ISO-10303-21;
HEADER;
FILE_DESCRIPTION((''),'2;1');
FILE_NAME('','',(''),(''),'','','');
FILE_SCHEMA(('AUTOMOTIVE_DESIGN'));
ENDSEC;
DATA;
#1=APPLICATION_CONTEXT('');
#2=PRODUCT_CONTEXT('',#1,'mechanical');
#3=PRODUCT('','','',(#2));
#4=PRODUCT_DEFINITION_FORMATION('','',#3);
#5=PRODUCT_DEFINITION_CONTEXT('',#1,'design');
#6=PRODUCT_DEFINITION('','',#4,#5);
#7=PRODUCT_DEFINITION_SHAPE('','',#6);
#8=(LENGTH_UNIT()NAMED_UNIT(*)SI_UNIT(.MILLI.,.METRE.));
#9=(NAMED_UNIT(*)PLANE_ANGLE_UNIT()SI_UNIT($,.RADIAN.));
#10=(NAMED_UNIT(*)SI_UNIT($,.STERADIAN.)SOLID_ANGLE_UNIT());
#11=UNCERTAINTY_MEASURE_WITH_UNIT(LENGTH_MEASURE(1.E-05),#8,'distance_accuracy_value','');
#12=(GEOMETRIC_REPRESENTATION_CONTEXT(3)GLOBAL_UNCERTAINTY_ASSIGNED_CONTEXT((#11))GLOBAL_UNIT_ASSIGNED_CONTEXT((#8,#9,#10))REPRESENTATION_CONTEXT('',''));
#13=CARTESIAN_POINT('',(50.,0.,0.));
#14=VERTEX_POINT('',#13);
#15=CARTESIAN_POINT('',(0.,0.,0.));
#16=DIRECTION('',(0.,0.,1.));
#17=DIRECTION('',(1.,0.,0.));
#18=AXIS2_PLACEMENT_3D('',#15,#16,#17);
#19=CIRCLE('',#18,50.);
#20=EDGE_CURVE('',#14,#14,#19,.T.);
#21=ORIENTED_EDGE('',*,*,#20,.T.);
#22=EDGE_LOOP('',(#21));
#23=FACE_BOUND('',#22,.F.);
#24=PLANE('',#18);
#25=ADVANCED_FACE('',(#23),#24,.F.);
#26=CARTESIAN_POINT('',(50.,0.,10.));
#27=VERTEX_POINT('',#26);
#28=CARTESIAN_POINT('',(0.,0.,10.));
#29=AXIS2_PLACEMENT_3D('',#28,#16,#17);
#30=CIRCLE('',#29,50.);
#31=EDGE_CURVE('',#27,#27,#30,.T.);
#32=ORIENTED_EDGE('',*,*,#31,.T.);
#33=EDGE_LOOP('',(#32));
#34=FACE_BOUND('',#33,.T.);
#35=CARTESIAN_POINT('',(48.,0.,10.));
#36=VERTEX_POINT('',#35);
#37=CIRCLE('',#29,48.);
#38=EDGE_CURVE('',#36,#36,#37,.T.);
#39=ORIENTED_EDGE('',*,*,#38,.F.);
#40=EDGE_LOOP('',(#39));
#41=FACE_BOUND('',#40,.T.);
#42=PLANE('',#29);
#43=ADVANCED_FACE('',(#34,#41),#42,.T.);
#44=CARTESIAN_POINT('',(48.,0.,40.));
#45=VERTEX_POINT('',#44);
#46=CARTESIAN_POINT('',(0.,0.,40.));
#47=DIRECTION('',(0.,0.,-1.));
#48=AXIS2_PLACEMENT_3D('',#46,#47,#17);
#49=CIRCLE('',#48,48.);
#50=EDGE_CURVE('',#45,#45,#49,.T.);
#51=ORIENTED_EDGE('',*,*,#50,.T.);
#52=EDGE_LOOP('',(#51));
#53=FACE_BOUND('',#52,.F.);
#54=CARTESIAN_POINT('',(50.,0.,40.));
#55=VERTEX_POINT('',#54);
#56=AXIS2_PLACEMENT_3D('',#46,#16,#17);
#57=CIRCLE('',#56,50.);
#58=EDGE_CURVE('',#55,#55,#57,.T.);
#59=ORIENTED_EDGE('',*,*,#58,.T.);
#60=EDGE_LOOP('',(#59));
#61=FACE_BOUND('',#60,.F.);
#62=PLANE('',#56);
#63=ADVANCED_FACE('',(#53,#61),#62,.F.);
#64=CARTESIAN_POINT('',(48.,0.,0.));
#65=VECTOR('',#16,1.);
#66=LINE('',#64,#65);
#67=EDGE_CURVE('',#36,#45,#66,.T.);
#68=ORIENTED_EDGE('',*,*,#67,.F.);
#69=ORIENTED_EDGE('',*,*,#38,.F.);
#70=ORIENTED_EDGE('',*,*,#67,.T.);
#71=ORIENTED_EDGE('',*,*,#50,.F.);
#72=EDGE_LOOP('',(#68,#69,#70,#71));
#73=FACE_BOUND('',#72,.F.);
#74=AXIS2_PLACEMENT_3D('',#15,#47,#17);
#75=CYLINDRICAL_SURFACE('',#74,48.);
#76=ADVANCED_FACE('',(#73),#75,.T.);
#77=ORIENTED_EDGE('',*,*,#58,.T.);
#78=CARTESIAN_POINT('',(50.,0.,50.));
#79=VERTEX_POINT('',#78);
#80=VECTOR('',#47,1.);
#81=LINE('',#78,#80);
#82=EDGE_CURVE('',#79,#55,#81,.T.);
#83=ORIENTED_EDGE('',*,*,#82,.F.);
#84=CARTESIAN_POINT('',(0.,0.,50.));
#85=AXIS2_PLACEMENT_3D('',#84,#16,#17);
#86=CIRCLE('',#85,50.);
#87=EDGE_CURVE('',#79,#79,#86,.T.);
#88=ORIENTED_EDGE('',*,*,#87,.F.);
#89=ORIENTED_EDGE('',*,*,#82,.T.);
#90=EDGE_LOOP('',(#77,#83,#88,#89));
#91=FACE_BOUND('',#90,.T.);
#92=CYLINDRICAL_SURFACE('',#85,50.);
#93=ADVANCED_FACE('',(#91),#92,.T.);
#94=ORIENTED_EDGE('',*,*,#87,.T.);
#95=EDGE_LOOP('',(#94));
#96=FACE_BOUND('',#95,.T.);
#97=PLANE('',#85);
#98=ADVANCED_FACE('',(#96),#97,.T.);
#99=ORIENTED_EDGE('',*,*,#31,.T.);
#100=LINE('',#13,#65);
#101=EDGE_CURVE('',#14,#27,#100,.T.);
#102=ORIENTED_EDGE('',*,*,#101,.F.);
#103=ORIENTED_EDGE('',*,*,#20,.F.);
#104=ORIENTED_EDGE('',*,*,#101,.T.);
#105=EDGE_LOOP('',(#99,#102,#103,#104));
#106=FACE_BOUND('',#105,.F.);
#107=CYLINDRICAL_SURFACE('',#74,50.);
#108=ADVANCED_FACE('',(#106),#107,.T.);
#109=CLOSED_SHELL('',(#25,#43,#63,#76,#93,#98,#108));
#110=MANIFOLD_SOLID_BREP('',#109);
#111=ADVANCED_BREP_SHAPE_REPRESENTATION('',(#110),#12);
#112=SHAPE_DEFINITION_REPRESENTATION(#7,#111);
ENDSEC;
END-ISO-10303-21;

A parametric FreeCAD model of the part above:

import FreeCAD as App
import Part
import Sketcher
from FreeCAD import Vector
Q = App.Units.Quantity

doc = App.newDocument("Part")
body = doc.addObject("PartDesign::Body", "Body")

sketch1 = body.newObject("Sketcher::SketchObject", "Sketch")
sketch1.AttachmentSupport = (doc.getObject("XY_Plane"), [""])
sketch1.MapMode = "FlatFace"
sketch1.addGeometry(Part.Circle(Vector(0, 0, 0), Vector(0, 0, 1), 48), False)
sketch1.addConstraint([
    Sketcher.Constraint("Coincident", 0, 3, -1, 1),
    Sketcher.Constraint("Diameter", 0, Q("96 mm")),
])
pad1 = body.newObject("PartDesign::Pad", "Pad")
pad1.Profile = sketch1
pad1.Length = 50

sketch2 = body.newObject("Sketcher::SketchObject", "Sketch001")
sketch2.AttachmentSupport = (doc.getObject("XY_Plane"), [""])
sketch2.MapMode = "FlatFace"
sketch2.addGeometry([
    Part.Circle(Vector(0, 0, 0), Vector(0, 0, 1), 50),
    Part.Circle(Vector(0, 0, 0), Vector(0, 0, 1), 48),
], False)
sketch2.addConstraint([
    Sketcher.Constraint("Coincident", 0, 3, -1, 1),
    Sketcher.Constraint("Coincident", 1, 3, -1, 1),
    Sketcher.Constraint("Diameter", 0, Q("100 mm")),
    Sketcher.Constraint("Diameter", 1, Q("96 mm")),
])
pad2 = body.newObject("PartDesign::Pad", "Pad001")
pad2.Profile = sketch2
pad2.Length = 10

sketch3 = body.newObject("Sketcher::SketchObject", "Sketch002")
sketch3.AttachmentSupport = (doc.getObject("XY_Plane"), [""])
sketch3.MapMode = "FlatFace"
sketch3.AttachmentOffset = App.Placement(Vector(0, 0, 50), App.Rotation())
sketch3.addGeometry(Part.Circle(Vector(0, 0, 0), Vector(0, 0, 1), 50), False)
sketch3.addConstraint([
    Sketcher.Constraint("Coincident", 0, 3, -1, 1),
    Sketcher.Constraint("Diameter", 0, Q("100 mm")),
])
pad3 = body.newObject("PartDesign::Pad", "Pad002")
pad3.Profile = sketch3
pad3.Length = 10
pad3.Reversed = True

doc.recompute()
